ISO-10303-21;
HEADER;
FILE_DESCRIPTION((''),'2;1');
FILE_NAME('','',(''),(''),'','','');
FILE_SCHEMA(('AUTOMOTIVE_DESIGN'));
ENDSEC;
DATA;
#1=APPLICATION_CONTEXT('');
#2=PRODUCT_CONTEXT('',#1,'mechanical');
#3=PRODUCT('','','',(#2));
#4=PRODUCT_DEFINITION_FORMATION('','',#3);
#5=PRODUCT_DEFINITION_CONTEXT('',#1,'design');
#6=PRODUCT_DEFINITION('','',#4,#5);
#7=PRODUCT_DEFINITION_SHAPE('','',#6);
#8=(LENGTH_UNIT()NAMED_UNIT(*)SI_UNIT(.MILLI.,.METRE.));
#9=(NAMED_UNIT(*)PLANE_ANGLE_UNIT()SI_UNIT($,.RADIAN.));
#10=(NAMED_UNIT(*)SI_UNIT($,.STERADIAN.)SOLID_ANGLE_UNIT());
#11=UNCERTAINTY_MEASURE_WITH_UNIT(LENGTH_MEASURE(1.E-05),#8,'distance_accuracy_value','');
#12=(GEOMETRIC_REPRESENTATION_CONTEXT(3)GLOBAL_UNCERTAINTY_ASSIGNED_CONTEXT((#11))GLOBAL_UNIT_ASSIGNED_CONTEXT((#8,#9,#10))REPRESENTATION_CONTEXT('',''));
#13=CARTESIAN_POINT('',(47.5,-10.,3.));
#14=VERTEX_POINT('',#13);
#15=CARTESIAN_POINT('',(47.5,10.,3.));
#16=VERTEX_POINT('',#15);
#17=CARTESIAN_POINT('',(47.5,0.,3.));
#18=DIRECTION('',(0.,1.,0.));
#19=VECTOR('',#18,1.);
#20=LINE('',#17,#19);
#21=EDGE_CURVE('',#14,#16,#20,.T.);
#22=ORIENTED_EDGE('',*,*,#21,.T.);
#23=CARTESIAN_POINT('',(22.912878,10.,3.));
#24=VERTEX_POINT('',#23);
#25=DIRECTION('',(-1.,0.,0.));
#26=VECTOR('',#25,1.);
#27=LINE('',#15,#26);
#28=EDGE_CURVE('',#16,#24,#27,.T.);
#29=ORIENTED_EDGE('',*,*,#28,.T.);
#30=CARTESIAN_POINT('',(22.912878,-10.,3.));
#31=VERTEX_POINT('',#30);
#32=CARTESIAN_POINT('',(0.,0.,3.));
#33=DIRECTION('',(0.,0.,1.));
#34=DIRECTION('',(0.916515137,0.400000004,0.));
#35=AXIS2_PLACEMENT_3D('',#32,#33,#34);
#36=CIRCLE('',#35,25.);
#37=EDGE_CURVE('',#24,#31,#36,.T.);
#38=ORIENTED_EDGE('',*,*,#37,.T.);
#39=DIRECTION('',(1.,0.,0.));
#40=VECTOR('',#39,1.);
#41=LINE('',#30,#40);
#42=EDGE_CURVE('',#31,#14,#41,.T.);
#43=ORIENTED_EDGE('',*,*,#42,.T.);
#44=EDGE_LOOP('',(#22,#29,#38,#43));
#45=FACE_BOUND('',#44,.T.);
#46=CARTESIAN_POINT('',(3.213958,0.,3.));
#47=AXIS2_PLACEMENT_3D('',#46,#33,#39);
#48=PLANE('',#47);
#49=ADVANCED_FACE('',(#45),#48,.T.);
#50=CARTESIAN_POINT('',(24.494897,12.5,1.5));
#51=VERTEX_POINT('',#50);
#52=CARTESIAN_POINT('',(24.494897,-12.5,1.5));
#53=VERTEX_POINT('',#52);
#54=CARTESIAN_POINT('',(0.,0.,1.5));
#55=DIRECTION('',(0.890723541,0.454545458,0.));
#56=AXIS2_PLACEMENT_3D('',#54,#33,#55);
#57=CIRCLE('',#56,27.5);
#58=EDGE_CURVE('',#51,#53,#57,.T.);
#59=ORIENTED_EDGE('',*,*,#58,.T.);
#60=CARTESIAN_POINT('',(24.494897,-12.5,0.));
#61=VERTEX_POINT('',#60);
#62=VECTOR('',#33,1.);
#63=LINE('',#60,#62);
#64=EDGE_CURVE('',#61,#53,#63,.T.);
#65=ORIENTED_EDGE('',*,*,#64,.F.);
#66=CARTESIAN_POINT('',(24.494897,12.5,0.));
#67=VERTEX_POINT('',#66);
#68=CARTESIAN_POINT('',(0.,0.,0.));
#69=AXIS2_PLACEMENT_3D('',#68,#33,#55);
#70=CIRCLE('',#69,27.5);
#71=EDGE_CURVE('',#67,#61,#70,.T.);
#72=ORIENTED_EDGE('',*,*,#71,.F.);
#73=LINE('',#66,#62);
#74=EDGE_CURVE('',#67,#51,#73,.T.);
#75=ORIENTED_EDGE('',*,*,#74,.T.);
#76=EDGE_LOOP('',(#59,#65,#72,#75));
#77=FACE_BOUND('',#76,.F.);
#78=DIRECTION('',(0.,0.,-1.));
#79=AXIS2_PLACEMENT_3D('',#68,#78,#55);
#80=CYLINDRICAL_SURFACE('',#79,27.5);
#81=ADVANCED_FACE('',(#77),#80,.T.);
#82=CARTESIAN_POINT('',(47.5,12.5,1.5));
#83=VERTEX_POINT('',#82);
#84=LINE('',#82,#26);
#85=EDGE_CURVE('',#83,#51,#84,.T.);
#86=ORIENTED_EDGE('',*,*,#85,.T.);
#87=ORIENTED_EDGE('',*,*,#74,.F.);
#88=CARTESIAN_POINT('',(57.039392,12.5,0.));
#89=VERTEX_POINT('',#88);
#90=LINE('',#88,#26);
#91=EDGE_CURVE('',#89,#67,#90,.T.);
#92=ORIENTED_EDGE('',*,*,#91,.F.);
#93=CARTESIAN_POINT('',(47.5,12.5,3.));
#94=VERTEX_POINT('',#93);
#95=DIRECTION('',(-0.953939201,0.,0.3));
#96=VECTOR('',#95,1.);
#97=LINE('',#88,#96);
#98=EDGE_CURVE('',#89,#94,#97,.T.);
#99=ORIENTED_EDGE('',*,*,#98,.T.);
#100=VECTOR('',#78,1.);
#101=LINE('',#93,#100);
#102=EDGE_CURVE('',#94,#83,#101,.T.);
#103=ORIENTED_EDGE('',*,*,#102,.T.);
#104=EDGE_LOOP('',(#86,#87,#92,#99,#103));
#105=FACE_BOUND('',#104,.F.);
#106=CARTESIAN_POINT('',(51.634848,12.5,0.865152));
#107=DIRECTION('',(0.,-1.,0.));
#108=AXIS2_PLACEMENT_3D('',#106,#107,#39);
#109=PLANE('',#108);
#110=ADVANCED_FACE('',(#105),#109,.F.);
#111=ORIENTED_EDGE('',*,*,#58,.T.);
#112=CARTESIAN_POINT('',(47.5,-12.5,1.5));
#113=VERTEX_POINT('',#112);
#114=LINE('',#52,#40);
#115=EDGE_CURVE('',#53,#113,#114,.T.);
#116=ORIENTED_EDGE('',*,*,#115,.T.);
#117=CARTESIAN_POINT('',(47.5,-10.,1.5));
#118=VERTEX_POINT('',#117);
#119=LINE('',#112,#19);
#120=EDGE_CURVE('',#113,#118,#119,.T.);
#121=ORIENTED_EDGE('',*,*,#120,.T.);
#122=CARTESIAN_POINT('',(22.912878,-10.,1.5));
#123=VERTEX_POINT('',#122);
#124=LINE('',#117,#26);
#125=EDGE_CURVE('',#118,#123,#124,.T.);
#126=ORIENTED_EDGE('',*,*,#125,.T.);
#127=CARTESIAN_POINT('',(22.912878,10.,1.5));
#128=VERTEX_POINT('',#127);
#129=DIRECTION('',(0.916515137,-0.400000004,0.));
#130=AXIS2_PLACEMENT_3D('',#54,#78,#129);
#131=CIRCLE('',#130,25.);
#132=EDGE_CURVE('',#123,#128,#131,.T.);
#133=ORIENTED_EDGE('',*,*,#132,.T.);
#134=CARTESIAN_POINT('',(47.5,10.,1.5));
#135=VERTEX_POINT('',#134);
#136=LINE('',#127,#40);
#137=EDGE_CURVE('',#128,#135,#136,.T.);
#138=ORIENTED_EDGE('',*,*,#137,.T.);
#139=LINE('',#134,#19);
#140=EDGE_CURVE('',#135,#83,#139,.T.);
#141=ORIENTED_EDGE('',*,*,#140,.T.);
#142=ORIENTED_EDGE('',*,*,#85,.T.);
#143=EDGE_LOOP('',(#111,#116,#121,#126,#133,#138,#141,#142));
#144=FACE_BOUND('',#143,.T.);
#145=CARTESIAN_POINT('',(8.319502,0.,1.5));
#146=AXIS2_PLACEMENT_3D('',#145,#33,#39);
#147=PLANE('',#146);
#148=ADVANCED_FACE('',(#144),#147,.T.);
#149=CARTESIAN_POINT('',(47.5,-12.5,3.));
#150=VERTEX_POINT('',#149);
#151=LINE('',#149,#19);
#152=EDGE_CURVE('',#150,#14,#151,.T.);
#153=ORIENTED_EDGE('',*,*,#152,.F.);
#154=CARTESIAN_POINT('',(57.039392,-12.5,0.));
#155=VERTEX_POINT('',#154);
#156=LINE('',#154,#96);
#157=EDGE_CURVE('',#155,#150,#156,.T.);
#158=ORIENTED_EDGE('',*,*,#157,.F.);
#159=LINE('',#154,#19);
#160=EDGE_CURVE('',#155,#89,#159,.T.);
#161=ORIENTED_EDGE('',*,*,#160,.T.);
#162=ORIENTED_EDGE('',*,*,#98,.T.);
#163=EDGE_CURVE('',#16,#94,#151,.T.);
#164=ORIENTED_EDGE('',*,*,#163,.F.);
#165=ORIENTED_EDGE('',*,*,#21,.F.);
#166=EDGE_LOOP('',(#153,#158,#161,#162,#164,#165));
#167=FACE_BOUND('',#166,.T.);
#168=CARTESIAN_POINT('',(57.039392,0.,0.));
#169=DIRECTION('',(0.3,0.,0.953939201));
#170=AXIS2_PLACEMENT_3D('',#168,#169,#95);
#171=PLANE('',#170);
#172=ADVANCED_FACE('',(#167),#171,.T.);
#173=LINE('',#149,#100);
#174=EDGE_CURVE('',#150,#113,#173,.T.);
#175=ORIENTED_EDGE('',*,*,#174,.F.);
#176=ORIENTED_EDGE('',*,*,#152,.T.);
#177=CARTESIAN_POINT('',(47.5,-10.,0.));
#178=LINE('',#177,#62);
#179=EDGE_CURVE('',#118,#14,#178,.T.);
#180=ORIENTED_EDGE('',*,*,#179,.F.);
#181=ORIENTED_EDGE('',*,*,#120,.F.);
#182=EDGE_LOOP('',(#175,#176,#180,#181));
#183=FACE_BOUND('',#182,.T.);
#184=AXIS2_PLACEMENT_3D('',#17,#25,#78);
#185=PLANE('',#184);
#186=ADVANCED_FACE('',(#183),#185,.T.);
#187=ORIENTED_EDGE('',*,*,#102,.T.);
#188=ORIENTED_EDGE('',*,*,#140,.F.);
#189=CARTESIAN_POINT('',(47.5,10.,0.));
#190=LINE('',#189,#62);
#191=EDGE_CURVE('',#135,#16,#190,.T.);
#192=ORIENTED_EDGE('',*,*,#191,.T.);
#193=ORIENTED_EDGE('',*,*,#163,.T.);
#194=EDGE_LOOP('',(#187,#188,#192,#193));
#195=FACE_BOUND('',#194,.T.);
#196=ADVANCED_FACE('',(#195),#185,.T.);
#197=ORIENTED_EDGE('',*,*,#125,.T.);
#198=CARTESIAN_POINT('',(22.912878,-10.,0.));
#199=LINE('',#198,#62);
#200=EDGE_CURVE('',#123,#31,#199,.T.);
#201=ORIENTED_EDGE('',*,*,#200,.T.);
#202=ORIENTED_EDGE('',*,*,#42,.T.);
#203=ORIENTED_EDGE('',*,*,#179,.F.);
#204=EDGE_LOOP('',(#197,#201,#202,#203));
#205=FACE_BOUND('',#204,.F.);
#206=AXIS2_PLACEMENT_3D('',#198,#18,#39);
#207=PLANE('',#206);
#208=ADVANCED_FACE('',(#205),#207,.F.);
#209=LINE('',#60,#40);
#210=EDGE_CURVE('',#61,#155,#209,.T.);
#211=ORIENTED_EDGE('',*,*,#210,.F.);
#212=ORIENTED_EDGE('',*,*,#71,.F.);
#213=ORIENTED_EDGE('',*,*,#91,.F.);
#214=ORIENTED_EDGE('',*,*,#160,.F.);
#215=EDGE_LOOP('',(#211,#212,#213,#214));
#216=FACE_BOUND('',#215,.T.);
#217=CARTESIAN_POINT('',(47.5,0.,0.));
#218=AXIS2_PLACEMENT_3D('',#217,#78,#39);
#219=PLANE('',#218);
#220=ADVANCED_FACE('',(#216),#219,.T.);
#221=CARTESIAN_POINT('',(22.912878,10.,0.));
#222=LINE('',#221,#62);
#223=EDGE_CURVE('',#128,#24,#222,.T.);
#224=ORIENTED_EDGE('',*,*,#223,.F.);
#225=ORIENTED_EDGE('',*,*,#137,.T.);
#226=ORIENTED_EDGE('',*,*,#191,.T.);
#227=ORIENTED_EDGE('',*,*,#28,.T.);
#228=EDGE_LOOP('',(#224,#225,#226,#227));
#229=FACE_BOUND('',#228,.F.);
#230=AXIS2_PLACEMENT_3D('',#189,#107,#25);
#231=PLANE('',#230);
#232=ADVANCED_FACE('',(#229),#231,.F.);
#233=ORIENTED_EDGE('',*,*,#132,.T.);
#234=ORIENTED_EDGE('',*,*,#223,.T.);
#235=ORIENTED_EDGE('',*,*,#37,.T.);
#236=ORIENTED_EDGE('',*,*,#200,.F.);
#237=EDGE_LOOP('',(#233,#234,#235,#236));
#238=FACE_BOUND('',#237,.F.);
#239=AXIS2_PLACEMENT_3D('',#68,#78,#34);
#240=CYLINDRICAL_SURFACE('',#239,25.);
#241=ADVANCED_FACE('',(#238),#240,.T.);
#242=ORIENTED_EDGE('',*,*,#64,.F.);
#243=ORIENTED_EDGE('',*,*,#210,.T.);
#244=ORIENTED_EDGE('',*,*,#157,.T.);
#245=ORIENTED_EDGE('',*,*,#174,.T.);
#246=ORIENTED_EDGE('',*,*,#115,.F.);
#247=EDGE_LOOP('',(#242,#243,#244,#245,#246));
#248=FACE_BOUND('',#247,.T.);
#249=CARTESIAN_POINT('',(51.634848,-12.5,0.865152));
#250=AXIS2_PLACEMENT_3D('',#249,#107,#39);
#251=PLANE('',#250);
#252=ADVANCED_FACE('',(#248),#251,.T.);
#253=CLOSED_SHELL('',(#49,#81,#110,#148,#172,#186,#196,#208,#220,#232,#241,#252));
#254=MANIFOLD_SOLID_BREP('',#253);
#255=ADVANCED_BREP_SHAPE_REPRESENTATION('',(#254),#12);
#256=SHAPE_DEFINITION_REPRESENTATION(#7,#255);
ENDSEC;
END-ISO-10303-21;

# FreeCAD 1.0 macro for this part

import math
import FreeCAD as App
import Part
import Sketcher

V = App.Vector
Q = App.Units.Quantity

doc = App.newDocument("Part")
body = doc.addObject("PartDesign::Body", "Body")

# Sketch on XY plane
sketch1 = doc.addObject("Sketcher::SketchObject", "Sketch")
body.addObject(sketch1)
sketch1.AttachmentSupport = (doc.XY_Plane, [""])
sketch1.MapMode = "FlatFace"
sketch1.addGeometry([
    Part.LineSegment(V(22.9, 10, 0), V(47.5, 10, 0)),  # 0
    Part.LineSegment(V(47.5, 10, 0), V(47.5, 12.5, 0)),  # 1
    Part.LineSegment(V(47.5, 12.5, 0), V(24.5, 12.5, 0)),  # 2
    Part.ArcOfCircle(Part.Circle(V(0, 0, 0), V(0, 0, 1), 27.5), math.radians(27), math.radians(333)),  # 3
    Part.LineSegment(V(24.5, -12.5, 0), V(47.5, -12.5, 0)),  # 4
    Part.LineSegment(V(47.5, -12.5, 0), V(47.5, -10, 0)),  # 5
    Part.LineSegment(V(47.5, -10, 0), V(22.9, -10, 0)),  # 6
    Part.ArcOfCircle(Part.Circle(V(0, 0, 0), V(0, 0, 1), 25), math.radians(24), math.radians(336)),  # 7
], False)
sketch1.addConstraint([
    Sketcher.Constraint("Coincident", 0, 2, 1, 1),
    Sketcher.Constraint("Coincident", 1, 2, 2, 1),
    Sketcher.Constraint("Coincident", 2, 2, 3, 1),
    Sketcher.Constraint("Coincident", 3, 2, 4, 1),
    Sketcher.Constraint("Coincident", 4, 2, 5, 1),
    Sketcher.Constraint("Coincident", 5, 2, 6, 1),
    Sketcher.Constraint("Coincident", 6, 2, 7, 2),
    Sketcher.Constraint("Coincident", 7, 1, 0, 1),
    Sketcher.Constraint("Horizontal", 0),
    Sketcher.Constraint("Vertical", 1),
    Sketcher.Constraint("Horizontal", 2),
    Sketcher.Constraint("Horizontal", 4),
    Sketcher.Constraint("Vertical", 5),
    Sketcher.Constraint("Horizontal", 6),
    Sketcher.Constraint("Coincident", 3, 3, -1, 1),
    Sketcher.Constraint("Coincident", 7, 3, -1, 1),
    Sketcher.Constraint("Symmetric", 1, 2, 4, 2, -1),
    Sketcher.Constraint("Vertical", 6, 2, 7, 1),
    Sketcher.Constraint("Radius", 7, Q("25 mm")),
    Sketcher.Constraint("Radius", 3, Q("27.5 mm")),
    Sketcher.Constraint("DistanceY", 1, 1, 1, 2, Q("2.5 mm")),
    Sketcher.Constraint("DistanceY", -1, 1, 0, 2, Q("10 mm")),
    Sketcher.Constraint("DistanceX", -1, 1, 0, 2, Q("47.5 mm")),
])
pad1 = doc.addObject("PartDesign::Pad", "Pad")
body.addObject(pad1)
pad1.Profile = sketch1
pad1.Length = 1.5

# Sketch on XY plane
sketch2 = doc.addObject("Sketcher::SketchObject", "Sketch001")
body.addObject(sketch2)
sketch2.AttachmentSupport = (doc.XY_Plane, [""])
sketch2.MapMode = "FlatFace"
sketch2.addGeometry([
    Part.ArcOfCircle(Part.Circle(V(0, 0, 0), V(0, 0, 1), 25), math.radians(24), math.radians(336)),
    Part.LineSegment(V(23, -10, 0), V(48, -10, 0)),
    Part.LineSegment(V(48, -10, 0), V(48, 10, 0)),
    Part.LineSegment(V(48, 10, 0), V(23, 10, 0)),
], False)
sketch2.addConstraint([
    Sketcher.Constraint("Coincident", 0, 2, 1, 1),
    Sketcher.Constraint("Coincident", 1, 2, 2, 1),
    Sketcher.Constraint("Coincident", 2, 2, 3, 1),
    Sketcher.Constraint("Coincident", 3, 2, 0, 1),
    Sketcher.Constraint("Horizontal", 1),
    Sketcher.Constraint("Vertical", 2),
    Sketcher.Constraint("Horizontal", 3),
    Sketcher.Constraint("Coincident", 0, 3, -1, 1),
    Sketcher.Constraint("Vertical", 0, 2, 3, 2),
    Sketcher.Constraint("Radius", 0, Q("25 mm")),
    Sketcher.Constraint("DistanceY", 2, 1, 2, 2, Q("20 mm")),
    Sketcher.Constraint("DistanceX", -1, 1, 1, 2, Q("47.5 mm")),
])
pad2 = doc.addObject("PartDesign::Pad", "Pad001")
body.addObject(pad2)
pad2.Profile = sketch2
pad2.Length = 3

# Sketch on XZ plane
sketch3 = doc.addObject("Sketcher::SketchObject", "Sketch002")
body.addObject(sketch3)
sketch3.AttachmentSupport = (doc.XZ_Plane, [""])
sketch3.MapMode = "FlatFace"
sketch3.addGeometry([
    Part.LineSegment(V(47.5, 3, 0), V(47.5, 0, 0)),
    Part.LineSegment(V(47.5, 0, 0), V(57, 0, 0)),
    Part.LineSegment(V(57, 0, 0), V(47.5, 3, 0)),
], False)
sketch3.addConstraint([
    Sketcher.Constraint("Coincident", 0, 2, 1, 1),
    Sketcher.Constraint("Coincident", 1, 2, 2, 1),
    Sketcher.Constraint("Coincident", 2, 2, 0, 1),
    Sketcher.Constraint("Vertical", 0),
    Sketcher.Constraint("Horizontal", 1),
    Sketcher.Constraint("PointOnObject", 0, 2, -1),
    Sketcher.Constraint("DistanceY", 0, 2, 0, 1, Q("3 mm")),
    Sketcher.Constraint("Distance", 2, Q("10 mm")),
    Sketcher.Constraint("DistanceX", -1, 1, 0, 2, Q("47.5 mm")),
])
pad3 = doc.addObject("PartDesign::Pad", "Pad002")
body.addObject(pad3)
pad3.Profile = sketch3
pad3.Length = 25
pad3.Midplane = True

doc.recompute()
